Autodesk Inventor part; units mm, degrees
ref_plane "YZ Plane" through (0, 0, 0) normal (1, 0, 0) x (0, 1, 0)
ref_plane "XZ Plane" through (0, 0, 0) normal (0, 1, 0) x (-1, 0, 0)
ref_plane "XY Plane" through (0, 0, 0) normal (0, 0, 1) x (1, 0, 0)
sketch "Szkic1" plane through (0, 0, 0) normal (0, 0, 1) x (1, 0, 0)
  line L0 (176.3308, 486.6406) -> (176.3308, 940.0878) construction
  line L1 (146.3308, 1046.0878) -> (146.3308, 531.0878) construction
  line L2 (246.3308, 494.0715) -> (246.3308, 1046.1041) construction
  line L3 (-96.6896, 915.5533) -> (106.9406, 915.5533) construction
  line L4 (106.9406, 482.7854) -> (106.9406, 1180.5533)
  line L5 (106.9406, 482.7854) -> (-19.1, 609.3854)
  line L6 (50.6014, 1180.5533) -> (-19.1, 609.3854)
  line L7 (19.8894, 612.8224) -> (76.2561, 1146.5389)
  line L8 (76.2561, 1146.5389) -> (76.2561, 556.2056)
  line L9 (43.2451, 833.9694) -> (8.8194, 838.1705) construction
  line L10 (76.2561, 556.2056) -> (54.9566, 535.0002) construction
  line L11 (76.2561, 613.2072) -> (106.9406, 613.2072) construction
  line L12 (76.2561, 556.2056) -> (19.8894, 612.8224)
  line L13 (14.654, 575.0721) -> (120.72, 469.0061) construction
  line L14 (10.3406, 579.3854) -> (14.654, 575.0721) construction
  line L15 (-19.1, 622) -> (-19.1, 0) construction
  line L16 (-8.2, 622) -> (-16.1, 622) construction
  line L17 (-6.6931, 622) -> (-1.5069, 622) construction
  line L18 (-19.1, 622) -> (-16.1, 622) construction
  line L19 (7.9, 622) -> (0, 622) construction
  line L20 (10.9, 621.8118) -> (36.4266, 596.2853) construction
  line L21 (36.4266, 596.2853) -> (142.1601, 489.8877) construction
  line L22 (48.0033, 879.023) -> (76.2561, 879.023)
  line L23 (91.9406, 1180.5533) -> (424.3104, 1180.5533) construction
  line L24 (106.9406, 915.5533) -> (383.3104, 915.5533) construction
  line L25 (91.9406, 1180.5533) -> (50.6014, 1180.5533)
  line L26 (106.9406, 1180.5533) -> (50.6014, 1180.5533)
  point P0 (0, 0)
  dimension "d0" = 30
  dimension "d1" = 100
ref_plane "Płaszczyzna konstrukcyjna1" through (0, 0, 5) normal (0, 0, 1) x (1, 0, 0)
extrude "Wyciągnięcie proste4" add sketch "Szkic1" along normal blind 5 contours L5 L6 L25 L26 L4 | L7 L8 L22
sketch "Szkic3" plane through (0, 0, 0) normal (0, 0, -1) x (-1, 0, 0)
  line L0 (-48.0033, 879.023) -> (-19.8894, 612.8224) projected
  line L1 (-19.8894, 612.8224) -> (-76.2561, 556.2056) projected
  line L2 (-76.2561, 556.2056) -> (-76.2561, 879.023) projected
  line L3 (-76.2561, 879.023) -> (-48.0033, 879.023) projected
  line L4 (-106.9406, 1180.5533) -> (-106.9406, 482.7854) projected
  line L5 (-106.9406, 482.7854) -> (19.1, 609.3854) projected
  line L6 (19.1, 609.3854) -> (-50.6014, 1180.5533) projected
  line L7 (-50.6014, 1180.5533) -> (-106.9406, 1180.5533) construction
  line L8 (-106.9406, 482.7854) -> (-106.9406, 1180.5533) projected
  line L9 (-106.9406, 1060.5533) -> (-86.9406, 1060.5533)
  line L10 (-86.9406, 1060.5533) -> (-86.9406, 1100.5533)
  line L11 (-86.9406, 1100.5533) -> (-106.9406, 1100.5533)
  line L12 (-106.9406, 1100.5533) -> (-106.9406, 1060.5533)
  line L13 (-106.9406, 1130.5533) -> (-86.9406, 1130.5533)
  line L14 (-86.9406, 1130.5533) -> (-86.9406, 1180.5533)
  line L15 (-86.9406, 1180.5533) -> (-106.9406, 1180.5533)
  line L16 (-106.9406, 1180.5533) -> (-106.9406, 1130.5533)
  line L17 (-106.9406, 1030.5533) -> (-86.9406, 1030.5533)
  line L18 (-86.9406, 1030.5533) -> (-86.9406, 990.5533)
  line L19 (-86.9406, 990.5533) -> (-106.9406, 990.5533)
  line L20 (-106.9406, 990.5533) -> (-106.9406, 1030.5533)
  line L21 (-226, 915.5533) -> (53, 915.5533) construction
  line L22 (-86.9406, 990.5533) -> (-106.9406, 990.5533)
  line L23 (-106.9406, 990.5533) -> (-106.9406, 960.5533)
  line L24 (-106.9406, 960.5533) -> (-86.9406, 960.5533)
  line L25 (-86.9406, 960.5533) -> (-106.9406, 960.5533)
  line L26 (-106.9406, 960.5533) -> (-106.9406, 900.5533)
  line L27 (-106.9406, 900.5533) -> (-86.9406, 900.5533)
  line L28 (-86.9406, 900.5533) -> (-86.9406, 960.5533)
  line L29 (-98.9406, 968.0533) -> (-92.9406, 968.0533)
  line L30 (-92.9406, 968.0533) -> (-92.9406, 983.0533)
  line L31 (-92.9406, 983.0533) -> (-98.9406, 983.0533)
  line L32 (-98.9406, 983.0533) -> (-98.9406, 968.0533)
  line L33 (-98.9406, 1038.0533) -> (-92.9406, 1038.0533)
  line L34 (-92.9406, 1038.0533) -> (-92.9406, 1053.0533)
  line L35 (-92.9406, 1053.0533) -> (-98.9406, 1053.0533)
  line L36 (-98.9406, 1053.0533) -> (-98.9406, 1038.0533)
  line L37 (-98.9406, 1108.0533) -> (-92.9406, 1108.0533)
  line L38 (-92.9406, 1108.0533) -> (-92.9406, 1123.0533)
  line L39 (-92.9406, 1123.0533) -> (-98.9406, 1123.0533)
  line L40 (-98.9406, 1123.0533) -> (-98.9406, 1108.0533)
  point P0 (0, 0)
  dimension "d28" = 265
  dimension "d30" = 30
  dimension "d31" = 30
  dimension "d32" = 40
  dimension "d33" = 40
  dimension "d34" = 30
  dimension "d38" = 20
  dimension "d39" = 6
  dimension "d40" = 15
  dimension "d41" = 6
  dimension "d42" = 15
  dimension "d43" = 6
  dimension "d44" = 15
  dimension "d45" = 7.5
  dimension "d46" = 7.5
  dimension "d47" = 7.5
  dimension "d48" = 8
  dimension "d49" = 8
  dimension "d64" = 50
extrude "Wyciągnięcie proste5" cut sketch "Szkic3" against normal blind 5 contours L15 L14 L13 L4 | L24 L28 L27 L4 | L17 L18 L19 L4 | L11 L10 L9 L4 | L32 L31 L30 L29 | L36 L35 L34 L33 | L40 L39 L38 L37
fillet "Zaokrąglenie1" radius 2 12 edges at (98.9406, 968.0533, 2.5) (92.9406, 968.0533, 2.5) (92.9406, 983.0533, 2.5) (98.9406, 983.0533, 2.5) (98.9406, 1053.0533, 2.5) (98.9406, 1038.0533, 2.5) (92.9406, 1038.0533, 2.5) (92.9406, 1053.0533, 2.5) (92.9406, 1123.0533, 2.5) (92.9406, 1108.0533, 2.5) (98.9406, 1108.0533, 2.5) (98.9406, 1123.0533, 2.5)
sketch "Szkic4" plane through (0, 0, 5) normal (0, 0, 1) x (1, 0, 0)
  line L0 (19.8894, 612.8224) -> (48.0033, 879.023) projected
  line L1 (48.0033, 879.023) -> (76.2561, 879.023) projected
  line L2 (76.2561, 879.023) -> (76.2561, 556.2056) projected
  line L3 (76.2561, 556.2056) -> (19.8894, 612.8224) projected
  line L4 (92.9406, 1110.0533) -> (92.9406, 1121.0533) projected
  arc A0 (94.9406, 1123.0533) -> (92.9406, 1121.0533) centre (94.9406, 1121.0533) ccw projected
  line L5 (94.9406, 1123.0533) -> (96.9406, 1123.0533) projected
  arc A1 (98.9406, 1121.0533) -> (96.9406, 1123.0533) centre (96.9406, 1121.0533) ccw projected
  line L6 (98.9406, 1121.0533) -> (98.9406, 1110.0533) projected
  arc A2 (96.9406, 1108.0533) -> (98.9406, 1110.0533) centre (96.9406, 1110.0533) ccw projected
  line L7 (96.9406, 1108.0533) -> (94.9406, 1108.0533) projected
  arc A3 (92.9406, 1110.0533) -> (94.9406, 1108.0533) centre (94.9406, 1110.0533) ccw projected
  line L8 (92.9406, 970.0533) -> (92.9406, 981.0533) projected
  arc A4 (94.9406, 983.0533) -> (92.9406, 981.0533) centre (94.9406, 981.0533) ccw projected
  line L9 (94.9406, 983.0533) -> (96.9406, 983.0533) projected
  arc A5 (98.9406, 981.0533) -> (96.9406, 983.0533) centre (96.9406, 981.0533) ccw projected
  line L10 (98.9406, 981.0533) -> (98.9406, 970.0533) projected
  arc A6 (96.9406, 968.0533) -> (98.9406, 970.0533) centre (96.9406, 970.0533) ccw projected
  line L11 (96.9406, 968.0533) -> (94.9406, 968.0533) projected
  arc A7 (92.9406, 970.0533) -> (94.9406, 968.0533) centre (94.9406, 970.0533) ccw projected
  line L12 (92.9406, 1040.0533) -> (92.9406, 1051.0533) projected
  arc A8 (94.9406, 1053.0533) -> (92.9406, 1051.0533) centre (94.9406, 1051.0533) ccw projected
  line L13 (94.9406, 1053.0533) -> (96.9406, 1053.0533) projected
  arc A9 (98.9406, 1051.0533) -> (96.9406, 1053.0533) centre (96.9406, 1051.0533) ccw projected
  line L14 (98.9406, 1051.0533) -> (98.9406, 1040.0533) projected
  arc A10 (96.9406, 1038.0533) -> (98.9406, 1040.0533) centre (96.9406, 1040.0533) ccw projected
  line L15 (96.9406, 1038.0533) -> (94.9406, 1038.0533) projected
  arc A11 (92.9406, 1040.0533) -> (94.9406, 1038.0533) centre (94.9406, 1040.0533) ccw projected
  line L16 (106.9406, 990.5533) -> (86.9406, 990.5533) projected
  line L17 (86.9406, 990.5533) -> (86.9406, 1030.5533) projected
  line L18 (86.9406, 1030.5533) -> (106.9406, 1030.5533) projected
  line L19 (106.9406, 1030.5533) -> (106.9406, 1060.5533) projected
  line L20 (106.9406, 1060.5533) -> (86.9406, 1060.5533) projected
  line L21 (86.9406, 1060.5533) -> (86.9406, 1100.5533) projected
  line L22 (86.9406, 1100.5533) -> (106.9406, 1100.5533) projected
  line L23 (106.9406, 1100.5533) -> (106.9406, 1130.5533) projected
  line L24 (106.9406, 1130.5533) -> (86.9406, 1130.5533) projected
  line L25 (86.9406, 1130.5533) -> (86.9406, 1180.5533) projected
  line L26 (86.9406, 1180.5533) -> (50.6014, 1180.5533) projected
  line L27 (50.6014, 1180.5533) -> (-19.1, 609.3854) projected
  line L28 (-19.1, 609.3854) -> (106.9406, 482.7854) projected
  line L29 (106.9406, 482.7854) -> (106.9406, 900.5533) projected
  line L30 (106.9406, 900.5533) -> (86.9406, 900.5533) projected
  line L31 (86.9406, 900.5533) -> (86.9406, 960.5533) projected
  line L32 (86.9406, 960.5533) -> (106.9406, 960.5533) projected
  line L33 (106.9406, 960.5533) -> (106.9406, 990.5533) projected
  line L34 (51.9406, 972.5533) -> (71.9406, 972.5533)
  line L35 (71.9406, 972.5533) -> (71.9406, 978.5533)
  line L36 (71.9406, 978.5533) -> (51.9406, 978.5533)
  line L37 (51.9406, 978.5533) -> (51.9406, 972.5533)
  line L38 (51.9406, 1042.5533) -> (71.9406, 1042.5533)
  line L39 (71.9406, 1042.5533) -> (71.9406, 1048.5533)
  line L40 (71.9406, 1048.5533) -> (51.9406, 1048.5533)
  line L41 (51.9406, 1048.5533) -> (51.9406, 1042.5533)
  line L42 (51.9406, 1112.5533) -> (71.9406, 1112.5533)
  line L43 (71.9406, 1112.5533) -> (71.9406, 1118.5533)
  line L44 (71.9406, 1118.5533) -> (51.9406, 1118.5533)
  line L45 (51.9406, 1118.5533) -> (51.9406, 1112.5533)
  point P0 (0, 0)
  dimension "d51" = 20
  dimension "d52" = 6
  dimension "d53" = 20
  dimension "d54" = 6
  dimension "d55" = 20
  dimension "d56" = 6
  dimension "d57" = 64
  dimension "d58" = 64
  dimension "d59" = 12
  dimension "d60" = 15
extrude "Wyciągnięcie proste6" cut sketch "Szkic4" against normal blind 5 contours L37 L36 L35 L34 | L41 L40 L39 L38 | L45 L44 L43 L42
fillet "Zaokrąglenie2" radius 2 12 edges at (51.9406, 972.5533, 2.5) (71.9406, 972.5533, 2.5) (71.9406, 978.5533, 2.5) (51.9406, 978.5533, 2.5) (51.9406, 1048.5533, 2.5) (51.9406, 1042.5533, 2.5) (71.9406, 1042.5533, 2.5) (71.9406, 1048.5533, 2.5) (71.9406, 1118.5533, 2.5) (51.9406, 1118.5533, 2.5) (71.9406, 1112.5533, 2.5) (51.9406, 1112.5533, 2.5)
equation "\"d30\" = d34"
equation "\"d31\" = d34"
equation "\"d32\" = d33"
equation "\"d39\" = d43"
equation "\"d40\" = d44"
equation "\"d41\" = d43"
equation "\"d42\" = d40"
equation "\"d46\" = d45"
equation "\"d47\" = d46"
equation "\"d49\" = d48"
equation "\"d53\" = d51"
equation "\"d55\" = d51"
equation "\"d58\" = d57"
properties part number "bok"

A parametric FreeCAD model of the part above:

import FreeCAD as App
import Part
import Sketcher

V = App.Vector
Q = App.Units.Quantity


def edges_at(feature, points):
    """Names of the edges that pass closest to the given points."""
    edges = feature.Shape.Edges
    near = lambda p: min(range(len(edges)), key=lambda i: edges[i].distToShape(Part.Vertex(*p))[0])
    return sorted({f"Edge{near(p) + 1}" for p in points})


def add_polygon(sketch, points):
    """Adds a closed chain of lines whose ends are joined by coincident constraints."""
    first, n = sketch.GeometryCount, len(points)
    for a, b in zip(points, points[1:] + points[:1]):
        sketch.addGeometry(Part.LineSegment(App.Vector(*a, 0), App.Vector(*b, 0)), False)
    for i in range(n):
        sketch.addConstraint(Sketcher.Constraint("Coincident", first + i, 2, first + (i + 1) % n, 1))

doc = App.newDocument("Part")
body = doc.addObject("PartDesign::Body", "Body")

sketch1 = body.newObject("Sketcher::SketchObject", "Sketch")
sketch1.AttachmentSupport = (doc.getObject("XY_Plane"), [""])
sketch1.MapMode = "FlatFace"
add_polygon(sketch1, [(-19.1, 609.3854), (106.9406, 482.7854), (106.9406, 1180.5533), (50.6014, 1180.5533)])
add_polygon(sketch1, [(76.2561, 556.2056), (19.8894, 612.8224), (48.0033, 879.023), (76.2561, 879.023)])
sketch1.addConstraint(Sketcher.Constraint("Vertical", 1))
sketch1.addConstraint(Sketcher.Constraint("Horizontal", 2))
sketch1.addConstraint(Sketcher.Constraint("Horizontal", 6))
sketch1.addConstraint(Sketcher.Constraint("Vertical", 7))
sketch1.addConstraint(Sketcher.Constraint("Parallel", 0, 4))
sketch1.addConstraint(Sketcher.Constraint("DistanceX", 3, 2, -1, 1, Q("19.1 mm")))
sketch1.addConstraint(Sketcher.Constraint("DistanceY", 0, 2, 3, 2, Q("126.6 mm")))
sketch1.addConstraint(Sketcher.Constraint("DistanceY", 1, 1, 1, 2, Q("697.768 mm")))
sketch1.addConstraint(Sketcher.Constraint("Distance", 5, Q("267.681 mm")))
sketch1.addConstraint(Sketcher.Constraint("DistanceX", 2, 2, 2, 1, Q("56.3392 mm")))
sketch1.addConstraint(Sketcher.Constraint("DistanceX", 6, 1, 6, 2, Q("28.2528 mm")))
sketch1.addConstraint(Sketcher.Constraint("DistanceY", 7, 2, 7, 1, Q("322.8174 mm")))
sketch1.addConstraint(Sketcher.Constraint("DistanceY", -1, 1, 5, 2, Q("879.023 mm")))
sketch1.addConstraint(Sketcher.Constraint("DistanceX", -1, 1, 6, 2, Q("76.256 mm")))
sketch1.addConstraint(Sketcher.Constraint("DistanceY", 3, 2, 4, 2, Q("3.437 mm")))
sketch1.addConstraint(Sketcher.Constraint("DistanceX", 4, 2, 2, 2, Q("30.712 mm")))
pad1 = body.newObject("PartDesign::Pad", "Pad")
pad1.Profile = sketch1
pad1.Length = 5

sketch2 = body.newObject("Sketcher::SketchObject", "Sketch001")
sketch2.AttachmentSupport = (doc.getObject("XY_Plane"), [""])
sketch2.MapMode = "FlatFace"
add_polygon(sketch2, [(86.9406, 1180.5533), (106.9406, 1180.5533), (106.9406, 1130.5533), (86.9406, 1130.5533)])
add_polygon(sketch2, [(86.9406, 960.5533), (106.9406, 960.5533), (106.9406, 900.5533), (86.9406, 900.5533)])
add_polygon(sketch2, [(86.9406, 1030.5533), (106.9406, 1030.5533), (106.9406, 990.5533), (86.9406, 990.5533)])
add_polygon(sketch2, [(86.9406, 1100.5533), (106.9406, 1100.5533), (106.9406, 1060.5533), (86.9406, 1060.5533)])
add_polygon(sketch2, [(98.9406, 983.0533), (98.9406, 968.0533), (92.9406, 968.0533), (92.9406, 983.0533)])
add_polygon(sketch2, [(98.9406, 1053.0533), (98.9406, 1038.0533), (92.9406, 1038.0533), (92.9406, 1053.0533)])
add_polygon(sketch2, [(98.9406, 1123.0533), (98.9406, 1108.0533), (92.9406, 1108.0533), (92.9406, 1123.0533)])
sketch2.addConstraint(Sketcher.Constraint("Horizontal", 0))
sketch2.addConstraint(Sketcher.Constraint("Vertical", 1))
sketch2.addConstraint(Sketcher.Constraint("Horizontal", 2))
sketch2.addConstraint(Sketcher.Constraint("Vertical", 3))
sketch2.addConstraint(Sketcher.Constraint("Horizontal", 4))
sketch2.addConstraint(Sketcher.Constraint("Vertical", 5))
sketch2.addConstraint(Sketcher.Constraint("Horizontal", 6))
sketch2.addConstraint(Sketcher.Constraint("Vertical", 7))
sketch2.addConstraint(Sketcher.Constraint("Horizontal", 8))
sketch2.addConstraint(Sketcher.Constraint("Vertical", 9))
sketch2.addConstraint(Sketcher.Constraint("Horizontal", 10))
sketch2.addConstraint(Sketcher.Constraint("Vertical", 11))
sketch2.addConstraint(Sketcher.Constraint("Horizontal", 12))
sketch2.addConstraint(Sketcher.Constraint("Vertical", 13))
sketch2.addConstraint(Sketcher.Constraint("Horizontal", 14))
sketch2.addConstraint(Sketcher.Constraint("Vertical", 15))
sketch2.addConstraint(Sketcher.Constraint("Vertical", 16))
sketch2.addConstraint(Sketcher.Constraint("Horizontal", 17))
sketch2.addConstraint(Sketcher.Constraint("Vertical", 18))
sketch2.addConstraint(Sketcher.Constraint("Horizontal", 19))
sketch2.addConstraint(Sketcher.Constraint("Vertical", 20))
sketch2.addConstraint(Sketcher.Constraint("Horizontal", 21))
sketch2.addConstraint(Sketcher.Constraint("Vertical", 22))
sketch2.addConstraint(Sketcher.Constraint("Horizontal", 23))
sketch2.addConstraint(Sketcher.Constraint("Vertical", 24))
sketch2.addConstraint(Sketcher.Constraint("Horizontal", 25))
sketch2.addConstraint(Sketcher.Constraint("Vertical", 26))
sketch2.addConstraint(Sketcher.Constraint("Horizontal", 27))
sketch2.addConstraint(Sketcher.Constraint("Vertical", 1, 2, 4, 2))
sketch2.addConstraint(Sketcher.Constraint("Vertical", 3, 2, 6, 2))
sketch2.addConstraint(Sketcher.Constraint("Vertical", 5, 2, 8, 2))
sketch2.addConstraint(Sketcher.Constraint("Vertical", 7, 2, 10, 2))
sketch2.addConstraint(Sketcher.Constraint("Vertical", 9, 2, 12, 2))
sketch2.addConstraint(Sketcher.Constraint("Vertical", 11, 2, 14, 2))
sketch2.addConstraint(Sketcher.Constraint("Vertical", 19, 2, 20, 2))
sketch2.addConstraint(Sketcher.Constraint("Vertical", 18, 2, 21, 2))
sketch2.addConstraint(Sketcher.Constraint("Vertical", 23, 2, 24, 2))
sketch2.addConstraint(Sketcher.Constraint("Vertical", 22, 2, 25, 2))
sketch2.addConstraint(Sketcher.Constraint("Equal", 11, 13))
sketch2.addConstraint(Sketcher.Constraint("Equal", 18, 20))
sketch2.addConstraint(Sketcher.Constraint("Equal", 22, 24))
sketch2.addConstraint(Sketcher.Constraint("DistanceX", 0, 1, 0, 2, Q("20 mm")))
sketch2.addConstraint(Sketcher.Constraint("DistanceX", 17, 2, 17, 1, Q("6 mm")))
sketch2.addConstraint(Sketcher.Constraint("DistanceY", 1, 2, 1, 1, Q("50 mm")))
sketch2.addConstraint(Sketcher.Constraint("DistanceY", 9, 2, 9, 1, Q("40 mm")))
sketch2.addConstraint(Sketcher.Constraint("DistanceY", 16, 2, 16, 1, Q("15 mm")))
sketch2.addConstraint(Sketcher.Constraint("DistanceY", 4, 2, 9, 2, Q("30 mm")))
sketch2.addConstraint(Sketcher.Constraint("DistanceY", 12, 2, 1, 2, Q("30 mm")))
sketch2.addConstraint(Sketcher.Constraint("DistanceY", 8, 2, 13, 2, Q("30 mm")))
sketch2.addConstraint(Sketcher.Constraint("DistanceX", 16, 2, 4, 2, Q("8 mm")))
sketch2.addConstraint(Sketcher.Constraint("DistanceY", 4, 2, 16, 2, Q("7.5 mm")))
sketch2.addConstraint(Sketcher.Constraint("DistanceY", 8, 2, 20, 2, Q("7.5 mm")))
sketch2.addConstraint(Sketcher.Constraint("DistanceY", 12, 2, 24, 2, Q("7.5 mm")))
sketch2.addConstraint(Sketcher.Constraint("DistanceY", 5, 2, 5, 1, Q("60 mm")))
sketch2.addConstraint(Sketcher.Constraint("DistanceX", -1, 1, 0, 2, Q("106.9406 mm")))
sketch2.addConstraint(Sketcher.Constraint("DistanceY", -1, 1, 0, 2, Q("1180.5533 mm")))
pocket1 = body.newObject("PartDesign::Pocket", "Pocket")
pocket1.Profile = sketch2
pocket1.Length = 5
pocket1.Reversed = True
doc.recompute()

fillet = body.newObject("PartDesign::Fillet", "Fillet")
fillet.Base = (pocket1, edges_at(pocket1, [
    (98.941, 968.053, 2.5),
    (92.941, 968.053, 2.5),
    (92.941, 983.053, 2.5),
    (98.941, 983.053, 2.5),
    (98.941, 1053.053, 2.5),
    (98.941, 1038.053, 2.5),
    (92.941, 1038.053, 2.5),
    (92.941, 1053.053, 2.5),
    (92.941, 1123.053, 2.5),
    (92.941, 1108.053, 2.5),
    (98.941, 1108.053, 2.5),
    (98.941, 1123.053, 2.5),
]))
fillet.Radius = 2

sketch3 = body.newObject("Sketcher::SketchObject", "Sketch002")
sketch3.AttachmentSupport = (doc.getObject("XY_Plane"), [""])
sketch3.MapMode = "FlatFace"
sketch3.AttachmentOffset = App.Placement(V(0, 0, 5), App.Rotation())
add_polygon(sketch3, [(51.9406, 978.5533), (51.9406, 972.5533), (71.9406, 972.5533), (71.9406, 978.5533)])
add_polygon(sketch3, [(51.9406, 1048.5533), (51.9406, 1042.5533), (71.9406, 1042.5533), (71.9406, 1048.5533)])
add_polygon(sketch3, [(51.9406, 1118.5533), (51.9406, 1112.5533), (71.9406, 1112.5533), (71.9406, 1118.5533)])
sketch3.addConstraint(Sketcher.Constraint("Vertical", 0))
sketch3.addConstraint(Sketcher.Constraint("Horizontal", 1))
sketch3.addConstraint(Sketcher.Constraint("Vertical", 2))
sketch3.addConstraint(Sketcher.Constraint("Horizontal", 3))
sketch3.addConstraint(Sketcher.Constraint("Vertical", 4))
sketch3.addConstraint(Sketcher.Constraint("Horizontal", 5))
sketch3.addConstraint(Sketcher.Constraint("Vertical", 6))
sketch3.addConstraint(Sketcher.Constraint("Horizontal", 7))
sketch3.addConstraint(Sketcher.Constraint("Vertical", 8))
sketch3.addConstraint(Sketcher.Constraint("Horizontal", 9))
sketch3.addConstraint(Sketcher.Constraint("Vertical", 10))
sketch3.addConstraint(Sketcher.Constraint("Horizontal", 11))
sketch3.addConstraint(Sketcher.Constraint("Vertical", 3, 2, 4, 2))
sketch3.addConstraint(Sketcher.Constraint("Vertical", 2, 2, 5, 2))
sketch3.addConstraint(Sketcher.Constraint("Vertical", 7, 2, 8, 2))
sketch3.addConstraint(Sketcher.Constraint("Vertical", 6, 2, 9, 2))
sketch3.addConstraint(Sketcher.Constraint("Equal", 2, 4))
sketch3.addConstraint(Sketcher.Constraint("Equal", 6, 8))
sketch3.addConstraint(Sketcher.Constraint("DistanceX", 1, 1, 1, 2, Q("20 mm")))
sketch3.addConstraint(Sketcher.Constraint("DistanceY", 0, 2, 0, 1, Q("6 mm")))
sketch3.addConstraint(Sketcher.Constraint("DistanceY", 3, 2, 4, 2, Q("64 mm")))
sketch3.addConstraint(Sketcher.Constraint("DistanceY", 7, 2, 8, 2, Q("64 mm")))
sketch3.addConstraint(Sketcher.Constraint("DistanceX", -1, 1, 0, 2, Q("51.9406 mm")))
sketch3.addConstraint(Sketcher.Constraint("DistanceY", -1, 1, 0, 2, Q("972.5533 mm")))
pocket2 = body.newObject("PartDesign::Pocket", "Pocket001")
pocket2.Profile = sketch3
pocket2.Length = 5
doc.recompute()

fillet2 = body.newObject("PartDesign::Fillet", "Fillet001")
fillet2.Base = (pocket2, edges_at(pocket2, [
    (51.941, 972.553, 2.5),
    (71.941, 972.553, 2.5),
    (71.941, 978.553, 2.5),
    (51.941, 978.553, 2.5),
    (51.941, 1048.553, 2.5),
    (51.941, 1042.553, 2.5),
    (71.941, 1042.553, 2.5),
    (71.941, 1048.553, 2.5),
    (71.941, 1118.553, 2.5),
    (51.941, 1118.553, 2.5),
    (71.941, 1112.553, 2.5),
    (51.941, 1112.553, 2.5),
]))
fillet2.Radius = 2

doc.recompute()
